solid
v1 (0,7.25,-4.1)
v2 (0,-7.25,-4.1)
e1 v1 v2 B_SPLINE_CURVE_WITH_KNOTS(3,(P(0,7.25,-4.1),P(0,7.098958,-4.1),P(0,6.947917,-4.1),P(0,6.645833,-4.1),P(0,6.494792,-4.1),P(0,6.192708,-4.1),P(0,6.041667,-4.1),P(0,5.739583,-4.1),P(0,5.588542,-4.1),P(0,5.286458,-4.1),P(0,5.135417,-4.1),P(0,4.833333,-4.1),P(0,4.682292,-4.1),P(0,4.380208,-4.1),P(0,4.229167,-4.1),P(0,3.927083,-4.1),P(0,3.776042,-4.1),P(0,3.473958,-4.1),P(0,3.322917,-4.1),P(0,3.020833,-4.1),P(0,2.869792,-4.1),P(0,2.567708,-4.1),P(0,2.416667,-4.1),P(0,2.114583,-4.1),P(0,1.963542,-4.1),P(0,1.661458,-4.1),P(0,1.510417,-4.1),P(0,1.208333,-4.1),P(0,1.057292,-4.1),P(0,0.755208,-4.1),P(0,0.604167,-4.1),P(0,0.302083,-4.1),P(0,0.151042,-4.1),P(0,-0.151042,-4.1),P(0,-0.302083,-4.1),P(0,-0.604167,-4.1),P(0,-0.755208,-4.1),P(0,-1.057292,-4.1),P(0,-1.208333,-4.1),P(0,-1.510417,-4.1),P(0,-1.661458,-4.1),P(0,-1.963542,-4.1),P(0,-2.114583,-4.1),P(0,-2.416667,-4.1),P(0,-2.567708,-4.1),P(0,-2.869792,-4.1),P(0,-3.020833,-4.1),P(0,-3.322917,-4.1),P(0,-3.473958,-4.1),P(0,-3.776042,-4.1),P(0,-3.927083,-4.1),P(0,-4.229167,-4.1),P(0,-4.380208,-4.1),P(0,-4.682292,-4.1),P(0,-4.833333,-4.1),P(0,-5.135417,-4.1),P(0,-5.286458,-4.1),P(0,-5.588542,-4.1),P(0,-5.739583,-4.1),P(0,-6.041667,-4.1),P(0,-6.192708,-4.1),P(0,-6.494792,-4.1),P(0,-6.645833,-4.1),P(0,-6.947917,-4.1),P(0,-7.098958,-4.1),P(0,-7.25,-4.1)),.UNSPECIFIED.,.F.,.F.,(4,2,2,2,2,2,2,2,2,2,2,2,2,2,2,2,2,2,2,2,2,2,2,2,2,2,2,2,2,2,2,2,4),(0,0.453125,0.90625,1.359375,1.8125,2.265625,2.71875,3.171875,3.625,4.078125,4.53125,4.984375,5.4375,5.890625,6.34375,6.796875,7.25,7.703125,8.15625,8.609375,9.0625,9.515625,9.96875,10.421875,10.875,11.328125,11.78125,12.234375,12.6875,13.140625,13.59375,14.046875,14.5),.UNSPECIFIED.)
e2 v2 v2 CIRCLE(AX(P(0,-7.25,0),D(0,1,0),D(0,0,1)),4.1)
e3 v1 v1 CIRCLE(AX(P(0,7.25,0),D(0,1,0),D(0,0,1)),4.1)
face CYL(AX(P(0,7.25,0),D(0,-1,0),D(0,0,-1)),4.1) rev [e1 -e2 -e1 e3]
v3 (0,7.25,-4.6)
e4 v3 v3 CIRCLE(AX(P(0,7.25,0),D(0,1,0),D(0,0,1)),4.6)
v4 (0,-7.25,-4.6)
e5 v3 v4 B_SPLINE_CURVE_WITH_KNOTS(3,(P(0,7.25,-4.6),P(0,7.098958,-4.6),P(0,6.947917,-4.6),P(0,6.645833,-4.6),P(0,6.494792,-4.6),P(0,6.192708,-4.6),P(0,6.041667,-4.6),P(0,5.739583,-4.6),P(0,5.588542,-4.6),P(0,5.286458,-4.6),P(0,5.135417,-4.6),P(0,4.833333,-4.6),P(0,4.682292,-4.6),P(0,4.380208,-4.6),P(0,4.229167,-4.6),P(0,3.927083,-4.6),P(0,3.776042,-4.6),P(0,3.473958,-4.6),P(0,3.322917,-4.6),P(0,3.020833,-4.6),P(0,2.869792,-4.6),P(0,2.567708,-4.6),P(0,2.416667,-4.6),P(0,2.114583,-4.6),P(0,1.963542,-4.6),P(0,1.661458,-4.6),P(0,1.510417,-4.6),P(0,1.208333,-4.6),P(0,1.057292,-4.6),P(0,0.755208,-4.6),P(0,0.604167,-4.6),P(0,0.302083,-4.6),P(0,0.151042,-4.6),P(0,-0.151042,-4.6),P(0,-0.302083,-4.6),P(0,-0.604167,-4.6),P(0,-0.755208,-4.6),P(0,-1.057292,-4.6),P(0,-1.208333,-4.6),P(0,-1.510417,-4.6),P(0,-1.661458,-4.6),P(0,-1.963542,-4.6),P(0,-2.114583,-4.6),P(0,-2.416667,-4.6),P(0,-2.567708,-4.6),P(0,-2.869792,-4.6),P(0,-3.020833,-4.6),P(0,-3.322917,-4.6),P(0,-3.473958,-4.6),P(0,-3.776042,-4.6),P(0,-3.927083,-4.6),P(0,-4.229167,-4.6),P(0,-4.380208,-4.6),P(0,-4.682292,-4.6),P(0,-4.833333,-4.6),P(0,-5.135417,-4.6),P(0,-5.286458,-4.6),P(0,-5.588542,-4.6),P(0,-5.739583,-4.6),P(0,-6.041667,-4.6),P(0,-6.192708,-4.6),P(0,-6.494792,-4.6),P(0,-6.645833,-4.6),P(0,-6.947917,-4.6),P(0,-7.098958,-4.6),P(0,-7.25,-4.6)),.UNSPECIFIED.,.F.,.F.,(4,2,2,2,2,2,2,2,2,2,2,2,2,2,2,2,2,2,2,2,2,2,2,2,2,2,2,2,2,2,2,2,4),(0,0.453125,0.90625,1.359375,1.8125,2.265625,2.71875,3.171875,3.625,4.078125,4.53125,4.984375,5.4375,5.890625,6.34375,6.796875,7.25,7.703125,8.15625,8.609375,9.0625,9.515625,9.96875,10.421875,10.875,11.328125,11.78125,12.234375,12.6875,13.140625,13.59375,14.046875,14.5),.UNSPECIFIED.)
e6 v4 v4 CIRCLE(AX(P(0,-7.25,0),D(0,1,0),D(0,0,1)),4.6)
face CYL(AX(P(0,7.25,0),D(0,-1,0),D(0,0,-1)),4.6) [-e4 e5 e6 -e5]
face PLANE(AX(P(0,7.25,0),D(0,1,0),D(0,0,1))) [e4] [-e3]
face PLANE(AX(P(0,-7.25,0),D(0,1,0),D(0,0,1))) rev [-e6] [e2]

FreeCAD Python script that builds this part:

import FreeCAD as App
import Part
import Sketcher
from FreeCAD import Vector
Q = App.Units.Quantity

doc = App.newDocument("Part")
body = doc.addObject("PartDesign::Body", "Body")

sketch1 = body.newObject("Sketcher::SketchObject", "Sketch")
sketch1.AttachmentSupport = (doc.getObject("XZ_Plane"), [""])
sketch1.MapMode = "FlatFace"
sketch1.addGeometry(Part.Circle(Vector(0, 0, 0), Vector(0, 0, 1), 4.6), False)
sketch1.addGeometry(Part.Circle(Vector(0, 0, 0), Vector(0, 0, 1), 4.1), False)
sketch1.addConstraint(Sketcher.Constraint("Coincident", 0, 3, -1, 1))
sketch1.addConstraint(Sketcher.Constraint("Coincident", 1, 3, -1, 1))
sketch1.addConstraint(Sketcher.Constraint("Diameter", 0, Q("9.2 mm")))
sketch1.addConstraint(Sketcher.Constraint("Diameter", 1, Q("8.2 mm")))
pad1 = body.newObject("PartDesign::Pad", "Pad")
pad1.Profile = sketch1
pad1.Length = 14.5
pad1.Midplane = True

doc.recompute()
